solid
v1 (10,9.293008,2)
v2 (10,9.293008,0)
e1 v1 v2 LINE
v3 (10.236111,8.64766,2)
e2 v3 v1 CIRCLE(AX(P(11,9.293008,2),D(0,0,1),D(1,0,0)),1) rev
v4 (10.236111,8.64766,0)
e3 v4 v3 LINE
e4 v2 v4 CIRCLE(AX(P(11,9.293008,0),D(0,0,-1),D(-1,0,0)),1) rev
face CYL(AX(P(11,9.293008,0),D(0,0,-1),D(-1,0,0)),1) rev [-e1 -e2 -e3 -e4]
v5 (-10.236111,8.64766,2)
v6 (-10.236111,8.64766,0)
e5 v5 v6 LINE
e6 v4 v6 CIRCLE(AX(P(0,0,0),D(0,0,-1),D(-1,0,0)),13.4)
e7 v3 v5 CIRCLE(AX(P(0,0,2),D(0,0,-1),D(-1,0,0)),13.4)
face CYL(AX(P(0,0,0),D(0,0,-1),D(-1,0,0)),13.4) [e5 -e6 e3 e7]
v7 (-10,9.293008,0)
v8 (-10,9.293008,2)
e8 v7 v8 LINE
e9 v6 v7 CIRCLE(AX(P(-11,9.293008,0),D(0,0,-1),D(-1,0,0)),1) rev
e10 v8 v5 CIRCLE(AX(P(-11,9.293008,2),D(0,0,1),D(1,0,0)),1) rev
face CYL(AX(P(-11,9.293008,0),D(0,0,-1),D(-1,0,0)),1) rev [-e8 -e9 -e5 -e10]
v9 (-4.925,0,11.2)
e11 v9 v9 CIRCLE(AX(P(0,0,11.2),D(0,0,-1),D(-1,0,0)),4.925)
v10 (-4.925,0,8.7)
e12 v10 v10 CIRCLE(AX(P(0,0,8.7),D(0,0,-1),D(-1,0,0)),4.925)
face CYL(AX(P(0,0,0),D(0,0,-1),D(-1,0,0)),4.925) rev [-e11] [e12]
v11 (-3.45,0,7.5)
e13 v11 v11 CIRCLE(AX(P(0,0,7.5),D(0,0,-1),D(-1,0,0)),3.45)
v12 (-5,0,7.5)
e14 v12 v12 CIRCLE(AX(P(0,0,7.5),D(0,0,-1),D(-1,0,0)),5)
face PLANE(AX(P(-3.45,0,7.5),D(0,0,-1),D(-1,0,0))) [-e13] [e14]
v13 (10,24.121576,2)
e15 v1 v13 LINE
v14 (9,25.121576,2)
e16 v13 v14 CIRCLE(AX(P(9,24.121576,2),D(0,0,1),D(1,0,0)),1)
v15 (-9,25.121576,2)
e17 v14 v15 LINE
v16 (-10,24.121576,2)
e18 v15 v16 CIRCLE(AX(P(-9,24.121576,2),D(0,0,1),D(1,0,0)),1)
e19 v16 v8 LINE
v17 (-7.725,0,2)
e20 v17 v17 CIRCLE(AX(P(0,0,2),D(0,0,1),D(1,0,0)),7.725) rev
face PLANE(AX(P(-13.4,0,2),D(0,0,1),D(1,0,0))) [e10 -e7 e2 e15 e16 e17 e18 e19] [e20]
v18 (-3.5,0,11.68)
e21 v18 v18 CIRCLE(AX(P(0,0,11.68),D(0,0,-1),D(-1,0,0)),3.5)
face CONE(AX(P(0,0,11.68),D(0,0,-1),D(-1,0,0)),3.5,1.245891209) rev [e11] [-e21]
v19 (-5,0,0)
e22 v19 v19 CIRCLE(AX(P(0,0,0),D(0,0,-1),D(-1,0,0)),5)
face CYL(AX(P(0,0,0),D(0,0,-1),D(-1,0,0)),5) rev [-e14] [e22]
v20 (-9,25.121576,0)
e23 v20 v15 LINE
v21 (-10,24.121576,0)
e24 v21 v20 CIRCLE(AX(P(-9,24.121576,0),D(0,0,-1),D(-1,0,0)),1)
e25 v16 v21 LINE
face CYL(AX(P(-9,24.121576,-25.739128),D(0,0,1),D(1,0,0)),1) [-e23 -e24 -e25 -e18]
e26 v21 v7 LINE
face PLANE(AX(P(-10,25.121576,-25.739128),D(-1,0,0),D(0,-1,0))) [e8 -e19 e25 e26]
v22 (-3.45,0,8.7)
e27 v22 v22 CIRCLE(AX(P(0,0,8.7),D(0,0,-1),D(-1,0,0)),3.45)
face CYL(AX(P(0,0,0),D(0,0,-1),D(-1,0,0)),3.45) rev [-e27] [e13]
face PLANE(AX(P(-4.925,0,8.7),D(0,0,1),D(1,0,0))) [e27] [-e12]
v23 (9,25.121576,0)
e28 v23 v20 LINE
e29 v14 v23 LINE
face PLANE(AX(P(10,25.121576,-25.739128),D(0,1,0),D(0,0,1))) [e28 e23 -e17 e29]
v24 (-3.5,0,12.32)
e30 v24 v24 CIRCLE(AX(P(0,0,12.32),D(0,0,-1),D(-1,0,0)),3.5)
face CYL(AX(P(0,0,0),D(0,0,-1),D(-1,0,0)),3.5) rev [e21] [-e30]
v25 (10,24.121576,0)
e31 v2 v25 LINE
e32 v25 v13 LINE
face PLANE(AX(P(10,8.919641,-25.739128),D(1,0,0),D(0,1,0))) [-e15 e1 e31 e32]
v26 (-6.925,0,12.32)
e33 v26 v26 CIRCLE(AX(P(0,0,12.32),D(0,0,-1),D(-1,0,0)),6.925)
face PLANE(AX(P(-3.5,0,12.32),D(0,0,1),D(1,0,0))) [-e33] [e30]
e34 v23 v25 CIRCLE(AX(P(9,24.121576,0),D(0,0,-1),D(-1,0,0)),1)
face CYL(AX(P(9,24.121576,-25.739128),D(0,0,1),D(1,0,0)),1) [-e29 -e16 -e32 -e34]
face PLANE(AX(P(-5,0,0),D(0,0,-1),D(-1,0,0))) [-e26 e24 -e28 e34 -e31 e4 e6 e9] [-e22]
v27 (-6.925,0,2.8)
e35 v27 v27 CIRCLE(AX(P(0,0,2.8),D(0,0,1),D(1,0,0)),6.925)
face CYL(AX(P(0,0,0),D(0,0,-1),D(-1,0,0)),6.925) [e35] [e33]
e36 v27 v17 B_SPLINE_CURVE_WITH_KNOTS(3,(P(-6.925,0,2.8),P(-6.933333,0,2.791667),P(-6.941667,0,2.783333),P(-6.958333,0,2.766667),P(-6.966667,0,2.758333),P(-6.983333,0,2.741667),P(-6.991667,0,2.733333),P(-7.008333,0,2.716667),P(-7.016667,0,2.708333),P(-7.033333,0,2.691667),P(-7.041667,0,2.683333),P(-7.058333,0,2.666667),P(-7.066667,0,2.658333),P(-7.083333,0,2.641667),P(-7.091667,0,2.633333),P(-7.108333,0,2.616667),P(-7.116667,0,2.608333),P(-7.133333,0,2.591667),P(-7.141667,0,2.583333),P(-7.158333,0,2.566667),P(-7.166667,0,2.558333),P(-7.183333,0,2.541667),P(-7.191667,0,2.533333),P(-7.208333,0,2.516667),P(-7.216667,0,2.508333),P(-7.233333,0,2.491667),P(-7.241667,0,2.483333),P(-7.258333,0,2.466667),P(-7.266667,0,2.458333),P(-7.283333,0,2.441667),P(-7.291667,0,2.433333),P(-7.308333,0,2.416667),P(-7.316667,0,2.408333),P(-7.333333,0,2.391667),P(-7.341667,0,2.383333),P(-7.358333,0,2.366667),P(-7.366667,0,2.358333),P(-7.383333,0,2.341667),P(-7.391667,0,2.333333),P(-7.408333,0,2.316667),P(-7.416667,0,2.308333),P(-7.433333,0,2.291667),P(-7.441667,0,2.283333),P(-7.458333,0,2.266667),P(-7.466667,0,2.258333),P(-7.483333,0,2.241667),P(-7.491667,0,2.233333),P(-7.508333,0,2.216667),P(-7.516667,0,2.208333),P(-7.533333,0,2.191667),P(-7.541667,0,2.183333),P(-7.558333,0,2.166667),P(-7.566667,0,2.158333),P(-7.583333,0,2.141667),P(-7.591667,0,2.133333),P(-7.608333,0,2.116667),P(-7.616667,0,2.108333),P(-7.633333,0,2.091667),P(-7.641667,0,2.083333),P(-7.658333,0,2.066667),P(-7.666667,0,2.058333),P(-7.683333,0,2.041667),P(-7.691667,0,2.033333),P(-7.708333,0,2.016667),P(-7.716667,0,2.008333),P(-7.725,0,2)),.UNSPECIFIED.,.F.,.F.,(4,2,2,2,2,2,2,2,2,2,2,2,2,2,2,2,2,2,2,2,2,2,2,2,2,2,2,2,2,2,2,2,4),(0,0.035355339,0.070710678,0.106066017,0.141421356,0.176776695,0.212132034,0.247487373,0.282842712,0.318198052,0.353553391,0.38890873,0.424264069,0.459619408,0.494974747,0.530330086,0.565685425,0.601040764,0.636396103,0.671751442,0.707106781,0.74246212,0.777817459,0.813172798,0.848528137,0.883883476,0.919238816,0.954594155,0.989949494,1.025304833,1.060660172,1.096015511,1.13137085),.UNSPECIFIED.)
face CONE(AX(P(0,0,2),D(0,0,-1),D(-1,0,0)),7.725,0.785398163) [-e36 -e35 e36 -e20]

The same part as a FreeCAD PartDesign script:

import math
import FreeCAD as App
import Part
import Sketcher

V = App.Vector
Q = App.Units.Quantity


def edges_at(feature, points):
    """Names of the edges that pass closest to the given points."""
    edges = feature.Shape.Edges
    near = lambda p: min(range(len(edges)), key=lambda i: edges[i].distToShape(Part.Vertex(*p))[0])
    return sorted({f"Edge{near(p) + 1}" for p in points})


def add_polygon(sketch, points):
    """Adds a closed chain of lines whose ends are joined by coincident constraints."""
    first, n = sketch.GeometryCount, len(points)
    for a, b in zip(points, points[1:] + points[:1]):
        sketch.addGeometry(Part.LineSegment(App.Vector(*a, 0), App.Vector(*b, 0)), False)
    for i in range(n):
        sketch.addConstraint(Sketcher.Constraint("Coincident", first + i, 2, first + (i + 1) % n, 1))

doc = App.newDocument("Part")
body = doc.addObject("PartDesign::Body", "Body")

# Sketch on XZ plane
sketch1 = body.newObject("Sketcher::SketchObject", "Sketch")
sketch1.AttachmentSupport = (doc.getObject("XZ_Plane"), [""])
sketch1.MapMode = "FlatFace"
add_polygon(sketch1, [(-3.5, 12.3), (-3.5, 11.7), (-4.9, 11.2), (-4.9, 8.7), (-3.5, 8.7), (-3.5, 7.5), (-5, 7.5), (-5, 0), (-13.4, 0), (-13.4, 2), (-6.9, 2), (-6.9, 12.3)])  # lines 0-11
sketch1.addConstraint(Sketcher.Constraint("Vertical", 0))
sketch1.addConstraint(Sketcher.Constraint("Vertical", 2))
sketch1.addConstraint(Sketcher.Constraint("Horizontal", 3))
sketch1.addConstraint(Sketcher.Constraint("Vertical", 4))
sketch1.addConstraint(Sketcher.Constraint("Horizontal", 5))
sketch1.addConstraint(Sketcher.Constraint("Vertical", 6))
sketch1.addConstraint(Sketcher.Constraint("Horizontal", 7))
sketch1.addConstraint(Sketcher.Constraint("Vertical", 8))
sketch1.addConstraint(Sketcher.Constraint("Horizontal", 9))
sketch1.addConstraint(Sketcher.Constraint("Vertical", 10))
sketch1.addConstraint(Sketcher.Constraint("Horizontal", 11))
sketch1.addConstraint(Sketcher.Constraint("PointOnObject", 6, 2, -1))
sketch1.addConstraint(Sketcher.Constraint("DistanceY", 8, 1, 8, 2, Q("2 mm")))
sketch1.addConstraint(Sketcher.Constraint("DistanceX", 7, 2, 7, 1, Q("8.4 mm")))
sketch1.addConstraint(Sketcher.Constraint("DistanceY", 2, 2, 2, 1, Q("2.5 mm")))
sketch1.addConstraint(Sketcher.Constraint("DistanceY", 4, 2, 4, 1, Q("1.2 mm")))
sketch1.addConstraint(Sketcher.Constraint("DistanceY", 6, 2, 6, 1, Q("7.5 mm")))
sketch1.addConstraint(Sketcher.Constraint("DistanceX", 5, 2, -1, 1, Q("5 mm")))
sketch1.addConstraint(Sketcher.Constraint("DistanceX", 10, 2, 1, 2, Q("2 mm")))
sketch1.addConstraint(Sketcher.Constraint("DistanceX", 5, 2, 5, 1, Q("1.55 mm")))
sketch1.addConstraint(Sketcher.Constraint("DistanceY", 0, 2, 0, 1, Q("0.64 mm")))
sketch1.addConstraint(Sketcher.Constraint("DistanceY", 10, 1, 10, 2, Q("10.32 mm")))
sketch1.addConstraint(Sketcher.Constraint("DistanceX", 0, 2, -1, 1, Q("3.5 mm")))
sketch1.addConstraint(Sketcher.Constraint("DistanceX", 3, 1, 3, 2, Q("1.475 mm")))
revolution = body.newObject("PartDesign::Revolution", "Revolution")
revolution.Profile = sketch1
revolution.ReferenceAxis = (sketch1, ["V_Axis"])
revolution.Angle = 360

# Sketch on XY plane
sketch2 = body.newObject("Sketcher::SketchObject", "Sketch001")
sketch2.AttachmentSupport = (doc.getObject("XY_Plane"), [""])
sketch2.MapMode = "FlatFace"
sketch2.AttachmentOffset = App.Placement(V(0, 0, 2), App.Rotation())
sketch2.addGeometry(Part.LineSegment(V(10, 9, 0), V(10, 25, 0)), False)
sketch2.addGeometry(Part.LineSegment(V(10, 25, 0), V(-10, 25, 0)), False)
sketch2.addGeometry(Part.LineSegment(V(-10, 25, 0), V(-10, 9, 0)), False)
sketch2.addGeometry(Part.ArcOfCircle(Part.Circle(V(0, 0, 0), V(0, 0, 1), 13), math.radians(42), math.radians(138)), False)
sketch2.addConstraint(Sketcher.Constraint("Coincident", 0, 2, 1, 1))
sketch2.addConstraint(Sketcher.Constraint("Coincident", 1, 2, 2, 1))
sketch2.addConstraint(Sketcher.Constraint("Coincident", 2, 2, 3, 2))
sketch2.addConstraint(Sketcher.Constraint("Coincident", 3, 1, 0, 1))
sketch2.addConstraint(Sketcher.Constraint("Vertical", 0))
sketch2.addConstraint(Sketcher.Constraint("Horizontal", 1))
sketch2.addConstraint(Sketcher.Constraint("Vertical", 2))
sketch2.addConstraint(Sketcher.Constraint("Coincident", 3, 3, -1, 1))
sketch2.addConstraint(Sketcher.Constraint("Horizontal", 2, 2, 3, 1))
sketch2.addConstraint(Sketcher.Constraint("Radius", 3, Q("13.4 mm")))
sketch2.addConstraint(Sketcher.Constraint("DistanceX", 1, 2, 1, 1, Q("20 mm")))
sketch2.addConstraint(Sketcher.Constraint("DistanceY", 0, 1, 0, 2, Q("16.201935 mm")))
pad1 = body.newObject("PartDesign::Pad", "Pad")
pad1.Profile = sketch2
pad1.Length = 2
pad1.Reversed = True
doc.recompute()

fillet = body.newObject("PartDesign::Fillet", "Fillet")
fillet.Base = (pad1, edges_at(pad1, [
    (10, 25.122, 1),
    (-10, 25.122, 1),
    (-10, 8.92, 1),
    (10, 8.92, 1),
]))
fillet.Radius = 1
doc.recompute()

chamfer = body.newObject("PartDesign::Chamfer", "Chamfer")
chamfer.Base = (fillet, edges_at(fillet, [(6.925, 0, 2)]))
chamfer.Size = 0.8

doc.recompute()
